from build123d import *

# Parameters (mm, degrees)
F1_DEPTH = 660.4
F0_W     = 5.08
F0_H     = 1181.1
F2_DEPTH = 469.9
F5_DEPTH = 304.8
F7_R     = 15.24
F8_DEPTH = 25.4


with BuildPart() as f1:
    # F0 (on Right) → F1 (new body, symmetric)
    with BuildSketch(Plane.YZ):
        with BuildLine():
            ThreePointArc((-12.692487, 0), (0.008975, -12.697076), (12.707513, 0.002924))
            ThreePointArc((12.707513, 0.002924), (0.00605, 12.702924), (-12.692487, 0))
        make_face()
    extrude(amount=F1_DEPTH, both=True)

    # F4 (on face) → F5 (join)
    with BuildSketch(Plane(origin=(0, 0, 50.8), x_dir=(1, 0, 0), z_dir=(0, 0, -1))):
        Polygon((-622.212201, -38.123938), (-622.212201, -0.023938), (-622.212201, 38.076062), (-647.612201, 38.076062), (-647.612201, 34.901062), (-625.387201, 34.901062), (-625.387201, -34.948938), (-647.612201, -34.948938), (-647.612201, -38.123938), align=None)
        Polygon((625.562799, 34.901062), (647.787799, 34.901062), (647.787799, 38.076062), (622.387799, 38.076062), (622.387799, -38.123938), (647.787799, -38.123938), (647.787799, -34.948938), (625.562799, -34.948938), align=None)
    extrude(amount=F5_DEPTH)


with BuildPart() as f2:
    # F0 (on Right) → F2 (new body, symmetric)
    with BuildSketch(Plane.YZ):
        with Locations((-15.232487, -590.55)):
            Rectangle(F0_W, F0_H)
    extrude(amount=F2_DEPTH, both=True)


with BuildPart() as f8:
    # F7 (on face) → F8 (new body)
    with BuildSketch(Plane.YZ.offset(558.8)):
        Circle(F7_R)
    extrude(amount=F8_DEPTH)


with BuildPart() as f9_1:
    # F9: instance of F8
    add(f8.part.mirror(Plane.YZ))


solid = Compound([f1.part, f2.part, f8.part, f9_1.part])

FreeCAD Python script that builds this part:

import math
import FreeCAD as App
import Part
import Sketcher
Q = App.Units.Quantity


def add_polygon(sketch, points):
    """Adds a closed chain of lines whose ends are joined by coincident constraints."""
    first, n = sketch.GeometryCount, len(points)
    for a, b in zip(points, points[1:] + points[:1]):
        sketch.addGeometry(Part.LineSegment(App.Vector(*a, 0), App.Vector(*b, 0)), False)
    for i in range(n):
        sketch.addConstraint(Sketcher.Constraint("Coincident", first + i, 2, first + (i + 1) % n, 1))

doc = App.newDocument("Part")
body = doc.addObject("PartDesign::Body", "Body")

# Sketch on YZ plane
sketch1 = body.newObject("Sketcher::SketchObject", "Sketch")
sketch1.AttachmentSupport = (doc.getObject("YZ_Plane"), [""])
sketch1.MapMode = "FlatFace"
sketch1.addGeometry([
    Part.ArcOfCircle(Part.Circle(App.Vector(0, 0, 0), App.Vector(0, 0, 1), 13), math.radians(-180), math.radians(0)),
    Part.ArcOfCircle(Part.Circle(App.Vector(0, 0, 0), App.Vector(0, 0, 1), 13), math.radians(0), math.radians(180)),
], False)
sketch1.addConstraint([
    Sketcher.Constraint("Tangent", 0, 1, 1, 2),
    Sketcher.Constraint("Coincident", 1, 1, 0, 2),
    Sketcher.Constraint("PointOnObject", 0, 1, -1),
    Sketcher.Constraint("Horizontal", 0, 3, 1, 1),
    Sketcher.Constraint("Radius", 0, Q("0.5 in")),
    Sketcher.Constraint("DistanceX", -1, 1, 0, 3, 0.007513),
    Sketcher.Constraint("DistanceY", -1, 1, 0, 3, 0.002924),
])
pad1 = body.newObject("PartDesign::Pad", "Pad")
pad1.Profile = sketch1
pad1.Length = Q("52 in")
pad1.Midplane = True

# Sketch on XY plane
sketch2 = body.newObject("Sketcher::SketchObject", "Sketch001")
sketch2.AttachmentSupport = (doc.getObject("XY_Plane"), [""])
sketch2.MapMode = "FlatFace"
sketch2.AttachmentOffset = App.Placement(App.Vector(0, 0, 2 * 25.4), App.Rotation())
add_polygon(sketch2, [(-622.2, 38.1), (-622.2, -38.1), (-647.6, -38.1), (-647.6, -34.9), (-625.4, -34.9), (-625.4, 34.9), (-647.6, 34.9), (-647.6, 38.1)])  # lines 0-7
add_polygon(sketch2, [(625.6, -34.9), (647.8, -34.9), (647.8, -38.1), (622.4, -38.1), (622.4, 38.1), (647.8, 38.1), (647.8, 34.9), (625.6, 34.9)])  # lines 8-15
sketch2.addConstraint([
    Sketcher.Constraint("Vertical", 0),
    Sketcher.Constraint("Horizontal", 1),
    Sketcher.Constraint("Vertical", 2),
    Sketcher.Constraint("Horizontal", 3),
    Sketcher.Constraint("Vertical", 4),
    Sketcher.Constraint("Horizontal", 5),
    Sketcher.Constraint("Vertical", 6),
    Sketcher.Constraint("Horizontal", 7),
    Sketcher.Constraint("Horizontal", 8),
    Sketcher.Constraint("Vertical", 9),
    Sketcher.Constraint("Horizontal", 10),
    Sketcher.Constraint("Vertical", 11),
    Sketcher.Constraint("Horizontal", 12),
    Sketcher.Constraint("Vertical", 13),
    Sketcher.Constraint("Horizontal", 14),
    Sketcher.Constraint("Vertical", 15),
    Sketcher.Constraint("Horizontal", 3, 2, 8, 2),
    Sketcher.Constraint("Horizontal", 1, 2, 9, 2),
    Sketcher.Constraint("Horizontal", 7, 2, 11, 2),
    Sketcher.Constraint("Horizontal", 5, 2, 13, 2),
    Sketcher.Constraint("Vertical", 2, 2, 5, 2),
    Sketcher.Constraint("Vertical", 9, 2, 12, 2),
    Sketcher.Constraint("Equal", 5, 8),
    Sketcher.Constraint("Equal", 7, 10),
    Sketcher.Constraint("Equal", 2, 6),
    Sketcher.Constraint("DistanceX", 1, 2, 1, 1, Q("1 in")),
    Sketcher.Constraint("DistanceY", 0, 2, 0, 1, Q("3 in")),
    Sketcher.Constraint("DistanceX", 0, 2, 8, 2, Q("50 in")),
    Sketcher.Constraint("DistanceY", 4, 1, 4, 2, Q("2.75 in")),
    Sketcher.Constraint("DistanceX", 3, 1, 3, 2, Q("0.875 in")),
    Sketcher.Constraint("DistanceX", 0, 2, -1, 1, 622.212201),
    Sketcher.Constraint("DistanceY", -1, 1, 6, 2, 38.123938),
])
pad2 = body.newObject("PartDesign::Pad", "Pad001")
pad2.Profile = sketch2
pad2.Length = Q("12 in")
pad2.Reversed = True
body2 = doc.addObject("PartDesign::Body", "Body001")

# Sketch on YZ plane
sketch3 = body2.newObject("Sketcher::SketchObject", "Sketch002")
sketch3.AttachmentSupport = (doc.getObject("YZ_Plane001"), [""])
sketch3.MapMode = "FlatFace"
add_polygon(sketch3, [(-18, 0), (-18, -1181), (-13, -1181), (-13, 0)])  # lines 0-3
sketch3.addConstraint([
    Sketcher.Constraint("Vertical", 0),
    Sketcher.Constraint("Horizontal", 1),
    Sketcher.Constraint("Vertical", 2),
    Sketcher.Constraint("Horizontal", 3),
    Sketcher.Constraint("PointOnObject", 2, 2, -1),
    Sketcher.Constraint("DistanceX", 1, 1, 1, 2, Q("0.2 in")),
    Sketcher.Constraint("DistanceY", 0, 2, 0, 1, Q("46.5 in")),
    Sketcher.Constraint("DistanceX", 0, 2, -1, 1, 17.772487),
])
pad3 = body2.newObject("PartDesign::Pad", "Pad002")
pad3.Profile = sketch3
pad3.Length = Q("37 in")
pad3.Midplane = True
body3 = doc.addObject("PartDesign::Body", "Body002")

# Sketch on YZ plane
sketch4 = body3.newObject("Sketcher::SketchObject", "Sketch003")
sketch4.AttachmentSupport = (doc.getObject("YZ_Plane002"), [""])
sketch4.MapMode = "FlatFace"
sketch4.AttachmentOffset = App.Placement(App.Vector(0, 0, 22 * 25.4), App.Rotation())
sketch4.addGeometry(Part.Circle(App.Vector(0, 0, 0), App.Vector(0, 0, 1), 15), False)
sketch4.addConstraint([
    Sketcher.Constraint("Coincident", 0, 3, -1, 1),
    Sketcher.Constraint("Diameter", 0, Q("1.2 in")),
])
pad4 = body3.newObject("PartDesign::Pad", "Pad003")
pad4.Profile = sketch4
pad4.Length = Q("1 in")
body4 = doc.addObject("PartDesign::Body", "Body003")
doc.recompute()

mirroring = doc.addObject("Part::Mirroring", "Mirroring")
mirroring.Source = body3
mirroring.Base = App.Vector(0, 0, 0)
mirroring.Normal = App.Vector(1, 0, 0)
body4.BaseFeature = mirroring
doc.recompute()
mirroring.Visibility = False

doc.recompute()
